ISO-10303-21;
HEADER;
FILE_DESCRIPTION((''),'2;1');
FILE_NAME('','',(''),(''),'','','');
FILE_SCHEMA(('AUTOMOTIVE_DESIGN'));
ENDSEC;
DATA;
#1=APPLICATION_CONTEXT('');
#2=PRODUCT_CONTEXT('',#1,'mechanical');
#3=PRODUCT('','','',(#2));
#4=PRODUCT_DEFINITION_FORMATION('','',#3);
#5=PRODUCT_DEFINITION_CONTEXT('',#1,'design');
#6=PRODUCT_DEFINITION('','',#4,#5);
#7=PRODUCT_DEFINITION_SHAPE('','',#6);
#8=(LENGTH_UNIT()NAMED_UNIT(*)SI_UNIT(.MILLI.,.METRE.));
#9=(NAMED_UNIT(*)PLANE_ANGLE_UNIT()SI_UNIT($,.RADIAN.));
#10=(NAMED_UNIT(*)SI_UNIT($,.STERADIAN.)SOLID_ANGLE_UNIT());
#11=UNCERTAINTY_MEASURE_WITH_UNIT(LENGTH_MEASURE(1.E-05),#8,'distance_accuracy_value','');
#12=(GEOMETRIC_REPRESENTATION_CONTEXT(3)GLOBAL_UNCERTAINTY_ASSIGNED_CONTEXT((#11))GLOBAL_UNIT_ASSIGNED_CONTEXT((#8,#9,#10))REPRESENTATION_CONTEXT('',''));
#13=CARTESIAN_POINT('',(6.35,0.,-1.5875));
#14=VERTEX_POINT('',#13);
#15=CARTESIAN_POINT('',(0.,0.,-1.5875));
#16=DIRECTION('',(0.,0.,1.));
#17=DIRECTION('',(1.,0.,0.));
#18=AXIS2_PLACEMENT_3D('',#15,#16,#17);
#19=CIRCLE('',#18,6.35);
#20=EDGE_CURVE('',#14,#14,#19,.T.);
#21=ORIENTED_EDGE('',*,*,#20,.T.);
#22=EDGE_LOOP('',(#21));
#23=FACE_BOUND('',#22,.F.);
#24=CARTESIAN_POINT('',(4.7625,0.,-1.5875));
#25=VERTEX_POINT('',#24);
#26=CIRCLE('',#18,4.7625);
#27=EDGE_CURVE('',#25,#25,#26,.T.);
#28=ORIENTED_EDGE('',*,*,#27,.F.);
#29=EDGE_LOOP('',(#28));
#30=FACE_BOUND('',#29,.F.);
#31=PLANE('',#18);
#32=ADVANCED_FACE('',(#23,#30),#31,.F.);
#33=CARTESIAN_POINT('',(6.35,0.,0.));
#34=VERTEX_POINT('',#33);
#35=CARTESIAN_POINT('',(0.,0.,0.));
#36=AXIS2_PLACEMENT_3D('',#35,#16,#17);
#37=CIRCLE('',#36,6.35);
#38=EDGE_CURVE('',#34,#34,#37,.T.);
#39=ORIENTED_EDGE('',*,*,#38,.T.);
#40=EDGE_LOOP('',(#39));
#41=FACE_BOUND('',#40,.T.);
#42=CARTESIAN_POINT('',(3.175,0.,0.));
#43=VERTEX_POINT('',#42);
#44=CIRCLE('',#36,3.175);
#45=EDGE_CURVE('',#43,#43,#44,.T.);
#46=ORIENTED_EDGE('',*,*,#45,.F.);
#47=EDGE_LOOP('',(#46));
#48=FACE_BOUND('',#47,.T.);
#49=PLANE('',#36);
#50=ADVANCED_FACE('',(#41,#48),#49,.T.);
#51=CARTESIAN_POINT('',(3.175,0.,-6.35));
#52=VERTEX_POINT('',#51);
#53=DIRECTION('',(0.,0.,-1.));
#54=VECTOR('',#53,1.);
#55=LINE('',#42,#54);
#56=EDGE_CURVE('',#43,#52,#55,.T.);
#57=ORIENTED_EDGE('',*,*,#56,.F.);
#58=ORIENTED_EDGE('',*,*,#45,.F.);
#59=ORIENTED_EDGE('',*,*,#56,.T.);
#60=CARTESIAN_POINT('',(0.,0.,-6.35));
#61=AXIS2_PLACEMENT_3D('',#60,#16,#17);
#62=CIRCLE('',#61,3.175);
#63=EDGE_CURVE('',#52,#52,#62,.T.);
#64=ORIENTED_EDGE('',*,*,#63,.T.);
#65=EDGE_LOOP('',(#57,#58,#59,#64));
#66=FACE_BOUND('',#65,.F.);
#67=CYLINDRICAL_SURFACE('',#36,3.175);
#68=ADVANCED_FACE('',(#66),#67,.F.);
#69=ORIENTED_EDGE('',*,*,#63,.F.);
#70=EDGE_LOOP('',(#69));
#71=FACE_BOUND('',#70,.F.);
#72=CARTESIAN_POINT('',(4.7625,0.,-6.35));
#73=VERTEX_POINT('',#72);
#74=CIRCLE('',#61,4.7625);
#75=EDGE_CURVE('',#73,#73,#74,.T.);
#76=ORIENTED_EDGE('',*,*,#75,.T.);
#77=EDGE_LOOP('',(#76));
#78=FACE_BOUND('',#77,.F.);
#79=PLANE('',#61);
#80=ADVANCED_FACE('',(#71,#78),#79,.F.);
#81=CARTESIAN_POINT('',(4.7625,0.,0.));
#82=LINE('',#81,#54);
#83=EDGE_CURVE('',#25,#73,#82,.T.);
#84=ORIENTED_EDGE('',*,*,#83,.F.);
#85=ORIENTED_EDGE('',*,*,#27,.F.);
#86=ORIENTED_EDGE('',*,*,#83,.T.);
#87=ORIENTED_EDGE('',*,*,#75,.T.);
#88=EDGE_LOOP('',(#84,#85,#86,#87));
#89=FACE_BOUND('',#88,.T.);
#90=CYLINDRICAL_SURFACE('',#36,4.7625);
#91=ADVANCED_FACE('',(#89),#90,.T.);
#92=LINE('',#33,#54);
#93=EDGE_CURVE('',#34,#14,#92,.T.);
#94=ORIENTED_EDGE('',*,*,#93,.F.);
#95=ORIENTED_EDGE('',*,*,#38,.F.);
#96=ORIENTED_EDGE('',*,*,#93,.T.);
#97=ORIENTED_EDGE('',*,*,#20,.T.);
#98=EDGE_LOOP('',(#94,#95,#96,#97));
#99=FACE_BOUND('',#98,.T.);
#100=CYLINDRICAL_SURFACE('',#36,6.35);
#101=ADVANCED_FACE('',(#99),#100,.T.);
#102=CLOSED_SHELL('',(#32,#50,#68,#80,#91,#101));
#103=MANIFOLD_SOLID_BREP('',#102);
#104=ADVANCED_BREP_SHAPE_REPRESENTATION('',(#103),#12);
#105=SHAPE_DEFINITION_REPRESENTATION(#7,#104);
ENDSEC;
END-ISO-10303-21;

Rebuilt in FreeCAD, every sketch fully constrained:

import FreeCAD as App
import Part
import Sketcher

V = App.Vector
Q = App.Units.Quantity

doc = App.newDocument("Part")
params = doc.addObject("Spreadsheet::Sheet", "Params")
for row, (alias, value) in enumerate([
    ("sketch1_diameter", "0.25 in"),
    ("sketch1_diameter2", "0.375 in"),
    ("pad1_length", "0.25 in"),
    ("sketch2_diameter", "0.5 in"),
    ("sketch2_diameter2", "0.375 in"),
    ("pad2_length", "0.0625 in"),
], start=1):
    params.set(f"A{row}", alias)
    params.set(f"B{row}", "=" + value)
    params.setAlias(f"B{row}", alias)

body = doc.addObject("PartDesign::Body", "Body")

# Sketch on XY plane
sketch1 = body.newObject("Sketcher::SketchObject", "Sketch")
sketch1.AttachmentSupport = (doc.getObject("XY_Plane"), [""])
sketch1.MapMode = "FlatFace"
sketch1.addGeometry(Part.Circle(V(0, 0, 0), V(0, 0, 1), 4.7625), False)
sketch1.addGeometry(Part.Circle(V(0, 0, 0), V(0, 0, 1), 3.175), False)
sketch1.addConstraint(Sketcher.Constraint("Coincident", 0, 3, -1, 1))
sketch1.addConstraint(Sketcher.Constraint("Coincident", 1, 3, -1, 1))
sketch1.addConstraint(Sketcher.Constraint("Diameter", 1, Q("0.25 in")))
sketch1.addConstraint(Sketcher.Constraint("Diameter", 0, Q("0.375 in")))
sketch1.setExpression("Constraints[2]", "Params.sketch1_diameter")
sketch1.setExpression("Constraints[3]", "Params.sketch1_diameter2")
pad1 = body.newObject("PartDesign::Pad", "Pad")
pad1.Profile = sketch1
pad1.setExpression("Length", "Params.pad1_length")
pad1.Reversed = True

# Sketch on XY plane
sketch2 = body.newObject("Sketcher::SketchObject", "Sketch001")
sketch2.AttachmentSupport = (doc.getObject("XY_Plane"), [""])
sketch2.MapMode = "FlatFace"
sketch2.addGeometry(Part.Circle(V(0, 0, 0), V(0, 0, 1), 6.35), False)
sketch2.addGeometry(Part.Circle(V(0, 0, 0), V(0, 0, 1), 4.7625), False)
sketch2.addConstraint(Sketcher.Constraint("Coincident", 0, 3, -1, 1))
sketch2.addConstraint(Sketcher.Constraint("Coincident", 1, 3, -1, 1))
sketch2.addConstraint(Sketcher.Constraint("Diameter", 0, Q("0.5 in")))
sketch2.addConstraint(Sketcher.Constraint("Diameter", 1, Q("0.375 in")))
sketch2.setExpression("Constraints[2]", "Params.sketch2_diameter")
sketch2.setExpression("Constraints[3]", "Params.sketch2_diameter2")
pad2 = body.newObject("PartDesign::Pad", "Pad001")
pad2.Profile = sketch2
pad2.setExpression("Length", "Params.pad2_length")
pad2.Reversed = True

doc.recompute()
